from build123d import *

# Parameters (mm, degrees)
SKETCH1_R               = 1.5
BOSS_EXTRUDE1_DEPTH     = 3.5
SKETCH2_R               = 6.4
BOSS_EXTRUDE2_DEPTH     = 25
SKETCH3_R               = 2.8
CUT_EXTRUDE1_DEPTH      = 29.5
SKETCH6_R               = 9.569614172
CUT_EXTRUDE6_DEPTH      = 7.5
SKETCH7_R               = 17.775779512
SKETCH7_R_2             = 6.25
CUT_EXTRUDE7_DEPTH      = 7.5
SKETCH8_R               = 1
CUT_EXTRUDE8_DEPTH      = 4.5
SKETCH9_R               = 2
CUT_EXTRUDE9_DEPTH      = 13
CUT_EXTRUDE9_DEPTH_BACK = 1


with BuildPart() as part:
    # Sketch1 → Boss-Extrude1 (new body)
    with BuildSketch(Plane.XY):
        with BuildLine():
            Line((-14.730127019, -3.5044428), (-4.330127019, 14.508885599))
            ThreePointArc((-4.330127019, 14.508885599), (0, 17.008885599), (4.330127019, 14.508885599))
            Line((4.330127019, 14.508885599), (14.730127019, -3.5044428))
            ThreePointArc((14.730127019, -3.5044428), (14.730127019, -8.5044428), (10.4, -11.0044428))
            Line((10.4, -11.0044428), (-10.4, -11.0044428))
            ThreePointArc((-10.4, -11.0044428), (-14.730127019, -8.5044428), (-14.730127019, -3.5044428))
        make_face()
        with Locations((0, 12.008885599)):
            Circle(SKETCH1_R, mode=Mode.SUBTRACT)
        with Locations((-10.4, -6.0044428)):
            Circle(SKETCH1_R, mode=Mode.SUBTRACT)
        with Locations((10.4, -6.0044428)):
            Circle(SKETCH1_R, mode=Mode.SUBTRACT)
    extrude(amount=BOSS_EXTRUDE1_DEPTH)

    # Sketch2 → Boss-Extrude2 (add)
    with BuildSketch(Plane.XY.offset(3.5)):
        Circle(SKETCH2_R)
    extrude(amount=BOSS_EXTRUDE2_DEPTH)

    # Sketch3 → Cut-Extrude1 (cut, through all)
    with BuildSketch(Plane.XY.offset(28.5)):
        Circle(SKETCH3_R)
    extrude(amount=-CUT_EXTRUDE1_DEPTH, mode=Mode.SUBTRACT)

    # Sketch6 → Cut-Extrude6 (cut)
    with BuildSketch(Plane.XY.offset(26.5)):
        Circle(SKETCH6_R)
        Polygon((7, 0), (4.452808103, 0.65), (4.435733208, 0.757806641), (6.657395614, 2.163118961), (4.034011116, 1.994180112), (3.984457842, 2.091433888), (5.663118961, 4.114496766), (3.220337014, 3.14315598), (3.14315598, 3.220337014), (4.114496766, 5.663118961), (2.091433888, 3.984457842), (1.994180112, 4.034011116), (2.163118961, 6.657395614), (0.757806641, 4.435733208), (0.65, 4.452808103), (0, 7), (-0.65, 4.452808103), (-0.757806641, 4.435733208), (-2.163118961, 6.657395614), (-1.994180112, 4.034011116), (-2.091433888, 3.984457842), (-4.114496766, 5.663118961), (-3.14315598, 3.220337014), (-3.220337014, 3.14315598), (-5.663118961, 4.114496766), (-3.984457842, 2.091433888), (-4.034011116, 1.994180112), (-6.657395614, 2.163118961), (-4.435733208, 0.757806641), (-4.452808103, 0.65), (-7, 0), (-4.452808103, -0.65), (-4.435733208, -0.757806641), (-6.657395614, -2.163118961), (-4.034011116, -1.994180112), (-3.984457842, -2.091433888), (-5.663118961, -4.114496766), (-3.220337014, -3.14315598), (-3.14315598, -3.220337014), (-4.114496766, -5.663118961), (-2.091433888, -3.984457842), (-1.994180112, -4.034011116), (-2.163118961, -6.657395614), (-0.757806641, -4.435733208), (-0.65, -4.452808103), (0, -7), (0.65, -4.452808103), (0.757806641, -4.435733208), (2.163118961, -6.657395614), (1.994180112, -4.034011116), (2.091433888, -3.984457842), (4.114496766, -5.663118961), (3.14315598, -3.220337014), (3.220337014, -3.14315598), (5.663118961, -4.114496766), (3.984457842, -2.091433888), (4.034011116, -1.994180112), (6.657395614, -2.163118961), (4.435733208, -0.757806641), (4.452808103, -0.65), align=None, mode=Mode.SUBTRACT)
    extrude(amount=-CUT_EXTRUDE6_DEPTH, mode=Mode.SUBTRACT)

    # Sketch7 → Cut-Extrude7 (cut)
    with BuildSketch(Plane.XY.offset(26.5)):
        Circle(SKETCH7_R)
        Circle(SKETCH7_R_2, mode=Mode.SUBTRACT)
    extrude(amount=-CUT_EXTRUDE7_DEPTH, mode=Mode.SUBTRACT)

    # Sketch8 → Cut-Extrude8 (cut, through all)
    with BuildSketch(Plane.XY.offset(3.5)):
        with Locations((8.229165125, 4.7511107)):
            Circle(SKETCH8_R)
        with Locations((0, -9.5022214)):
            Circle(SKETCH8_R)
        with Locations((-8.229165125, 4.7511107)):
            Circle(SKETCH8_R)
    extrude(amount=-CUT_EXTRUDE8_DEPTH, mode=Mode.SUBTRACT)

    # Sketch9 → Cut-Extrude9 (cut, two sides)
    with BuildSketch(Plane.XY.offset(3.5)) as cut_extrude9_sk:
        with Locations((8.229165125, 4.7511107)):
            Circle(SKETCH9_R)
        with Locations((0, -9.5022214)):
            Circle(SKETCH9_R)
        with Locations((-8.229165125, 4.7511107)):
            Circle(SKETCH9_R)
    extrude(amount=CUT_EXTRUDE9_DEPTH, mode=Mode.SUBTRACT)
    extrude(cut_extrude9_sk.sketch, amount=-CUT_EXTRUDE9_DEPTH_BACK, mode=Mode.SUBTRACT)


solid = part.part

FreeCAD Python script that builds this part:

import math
import FreeCAD as App
import Part
import Sketcher
Q = App.Units.Quantity


def add_polygon(sketch, points):
    """Adds a closed chain of lines whose ends are joined by coincident constraints."""
    first, n = sketch.GeometryCount, len(points)
    for a, b in zip(points, points[1:] + points[:1]):
        sketch.addGeometry(Part.LineSegment(App.Vector(*a, 0), App.Vector(*b, 0)), False)
    for i in range(n):
        sketch.addConstraint(Sketcher.Constraint("Coincident", first + i, 2, first + (i + 1) % n, 1))

doc = App.newDocument("Part")
body = doc.addObject("PartDesign::Body", "Body")

sketch1 = body.newObject("Sketcher::SketchObject", "Sketch")
sketch1.AttachmentSupport = (doc.getObject("XY_Plane"), [""])
sketch1.MapMode = "FlatFace"
sketch1.addGeometry([
    Part.LineSegment(App.Vector(-4.3, 14.5, 0), App.Vector(-14.7, -3.5, 0)),
    Part.ArcOfCircle(Part.Circle(App.Vector(-10.4, -6, 0), App.Vector(0, 0, 1), 5), math.radians(150), math.radians(270)),
    Part.LineSegment(App.Vector(-10.4, -11, 0), App.Vector(10.4, -11, 0)),
    Part.ArcOfCircle(Part.Circle(App.Vector(10.4, -6, 0), App.Vector(0, 0, 1), 5), math.radians(-90), math.radians(30)),
    Part.LineSegment(App.Vector(14.7, -3.5, 0), App.Vector(4.3, 14.5, 0)),
    Part.ArcOfCircle(Part.Circle(App.Vector(0, 12, 0), App.Vector(0, 0, 1), 5), math.radians(30), math.radians(150)),
    Part.Circle(App.Vector(10.4, -6, 0), App.Vector(0, 0, 1), 1.5),
    Part.Circle(App.Vector(-10.4, -6, 0), App.Vector(0, 0, 1), 1.5),
    Part.Circle(App.Vector(0, 12, 0), App.Vector(0, 0, 1), 1.5),
], False)
sketch1.addConstraint([
    Sketcher.Constraint("Tangent", 0, 2, 1, 1),
    Sketcher.Constraint("Tangent", 1, 2, 2, 1),
    Sketcher.Constraint("Tangent", 2, 2, 3, 1),
    Sketcher.Constraint("Tangent", 3, 2, 4, 1),
    Sketcher.Constraint("Tangent", 4, 2, 5, 1),
    Sketcher.Constraint("Tangent", 5, 2, 0, 1),
    Sketcher.Constraint("Horizontal", 2),
    Sketcher.Constraint("Coincident", 6, 3, 3, 3),
    Sketcher.Constraint("Coincident", 7, 3, 1, 3),
    Sketcher.Constraint("Coincident", 8, 3, 5, 3),
    Sketcher.Constraint("Equal", 1, 3),
    Sketcher.Constraint("Equal", 3, 5),
    Sketcher.Constraint("Equal", 6, 7),
    Sketcher.Constraint("Equal", 7, 8),
    Sketcher.Constraint("Symmetric", 0, 2, 3, 2, -2),
    Sketcher.Constraint("Diameter", 6, Q("3 mm")),
    Sketcher.Constraint("Radius", 1, Q("5 mm")),
    Sketcher.Constraint("Angle", 0, Q("-120 deg")),
    Sketcher.Constraint("DistanceX", 2, 1, 2, 2, Q("20.8 mm")),
    Sketcher.Constraint("DistanceY", 1, 3, -1, 1, Q("6.004443 mm")),
])
pad1 = body.newObject("PartDesign::Pad", "Pad")
pad1.Profile = sketch1
pad1.Length = 3.5

sketch2 = body.newObject("Sketcher::SketchObject", "Sketch001")
sketch2.AttachmentSupport = (doc.getObject("XY_Plane"), [""])
sketch2.MapMode = "FlatFace"
sketch2.AttachmentOffset = App.Placement(App.Vector(0, 0, 3.5), App.Rotation())
sketch2.addGeometry(Part.Circle(App.Vector(0, 0, 0), App.Vector(0, 0, 1), 6), False)
sketch2.addConstraint([
    Sketcher.Constraint("Coincident", 0, 3, -1, 1),
    Sketcher.Constraint("Diameter", 0, Q("12.8 mm")),
])
pad2 = body.newObject("PartDesign::Pad", "Pad001")
pad2.Profile = sketch2
pad2.Length = 25

sketch3 = body.newObject("Sketcher::SketchObject", "Sketch002")
sketch3.AttachmentSupport = (doc.getObject("XY_Plane"), [""])
sketch3.MapMode = "FlatFace"
sketch3.AttachmentOffset = App.Placement(App.Vector(0, 0, 28.5), App.Rotation())
sketch3.addGeometry(Part.Circle(App.Vector(0, 0, 0), App.Vector(0, 0, 1), 2.8), False)
sketch3.addConstraint([
    Sketcher.Constraint("Coincident", 0, 3, -1, 1),
    Sketcher.Constraint("Diameter", 0, Q("5.6 mm")),
])
pocket1 = body.newObject("PartDesign::Pocket", "Pocket")
pocket1.Profile = sketch3
pocket1.Type = "ThroughAll"

sketch4 = body.newObject("Sketcher::SketchObject", "Sketch003")
sketch4.AttachmentSupport = (doc.getObject("XY_Plane"), [""])
sketch4.MapMode = "FlatFace"
sketch4.AttachmentOffset = App.Placement(App.Vector(0, 0, 26.5), App.Rotation())
sketch4.addGeometry(Part.Circle(App.Vector(0, 0, 0), App.Vector(0, 0, 1), 9.57), False)
add_polygon(sketch4, [(4.45, 0.65), (7, 0), (4.45, -0.65), (4.44, -0.76), (6.66, -2.16), (4.03, -1.99), (3.98, -2.09), (5.66, -4.11), (3.22, -3.14), (3.14, -3.22), (4.11, -5.66), (2.09, -3.98), (1.99, -4.03), (2.16, -6.66), (0.76, -4.44), (0.65, -4.45), (0, -7), (-0.65, -4.45), (-0.76, -4.44), (-2.16, -6.66), (-1.99, -4.03), (-2.09, -3.98), (-4.11, -5.66), (-3.14, -3.22), (-3.22, -3.14), (-5.66, -4.11), (-3.98, -2.09), (-4.03, -1.99), (-6.66, -2.16), (-4.44, -0.76), (-4.45, -0.65), (-7, 0), (-4.45, 0.65), (-4.44, 0.76), (-6.66, 2.16), (-4.03, 1.99), (-3.98, 2.09), (-5.66, 4.11), (-3.22, 3.14), (-3.14, 3.22), (-4.11, 5.66), (-2.09, 3.98), (-1.99, 4.03), (-2.16, 6.66), (-0.76, 4.44), (-0.65, 4.45), (0, 7), (0.65, 4.45), (0.76, 4.44), (2.16, 6.66), (1.99, 4.03), (2.09, 3.98), (4.11, 5.66), (3.14, 3.22), (3.22, 3.14), (5.66, 4.11), (3.98, 2.09), (4.03, 1.99), (6.66, 2.16), (4.44, 0.76)])
sketch4.addConstraint([
    Sketcher.Constraint("Coincident", 0, 3, -1, 1),
    Sketcher.Constraint("Symmetric", 1, 2, 31, 2, -1, 1),
    Sketcher.Constraint("Symmetric", 2, 2, 32, 2, -1, 1),
    Sketcher.Constraint("Symmetric", 3, 2, 33, 2, -1, 1),
    Sketcher.Constraint("Symmetric", 4, 2, 34, 2, -1, 1),
    Sketcher.Constraint("Symmetric", 5, 2, 35, 2, -1, 1),
    Sketcher.Constraint("Symmetric", 6, 2, 36, 2, -1, 1),
    Sketcher.Constraint("Symmetric", 7, 2, 37, 2, -1, 1),
    Sketcher.Constraint("Symmetric", 8, 2, 38, 2, -1, 1),
    Sketcher.Constraint("Symmetric", 9, 2, 39, 2, -1, 1),
    Sketcher.Constraint("Symmetric", 10, 2, 40, 2, -1, 1),
    Sketcher.Constraint("Symmetric", 11, 2, 41, 2, -1, 1),
    Sketcher.Constraint("Symmetric", 12, 2, 42, 2, -1, 1),
    Sketcher.Constraint("Symmetric", 13, 2, 43, 2, -1, 1),
    Sketcher.Constraint("Symmetric", 14, 2, 44, 2, -1, 1),
    Sketcher.Constraint("Symmetric", 15, 2, 45, 2, -1, 1),
    Sketcher.Constraint("Symmetric", 16, 2, 46, 2, -1, 1),
    Sketcher.Constraint("Symmetric", 17, 2, 47, 2, -1, 1),
    Sketcher.Constraint("Symmetric", 18, 2, 48, 2, -1, 1),
    Sketcher.Constraint("Symmetric", 19, 2, 49, 2, -1, 1),
    Sketcher.Constraint("Symmetric", 20, 2, 50, 2, -1, 1),
    Sketcher.Constraint("Symmetric", 21, 2, 51, 2, -1, 1),
    Sketcher.Constraint("Symmetric", 22, 2, 52, 2, -1, 1),
    Sketcher.Constraint("Symmetric", 23, 2, 53, 2, -1, 1),
    Sketcher.Constraint("Symmetric", 24, 2, 54, 2, -1, 1),
    Sketcher.Constraint("Symmetric", 25, 2, 55, 2, -1, 1),
    Sketcher.Constraint("Symmetric", 26, 2, 56, 2, -1, 1),
    Sketcher.Constraint("Symmetric", 27, 2, 57, 2, -1, 1),
    Sketcher.Constraint("Symmetric", 28, 2, 58, 2, -1, 1),
    Sketcher.Constraint("Symmetric", 29, 2, 59, 2, -1, 1),
    Sketcher.Constraint("Symmetric", 30, 2, 60, 2, -1, 1),
    Sketcher.Constraint("Symmetric", 15, 2, 17, 2, -2),
    Sketcher.Constraint("Symmetric", 14, 2, 18, 2, -2),
    Sketcher.Constraint("Symmetric", 13, 2, 19, 2, -2),
    Sketcher.Constraint("Symmetric", 12, 2, 20, 2, -2),
    Sketcher.Constraint("Symmetric", 11, 2, 21, 2, -2),
    Sketcher.Constraint("Symmetric", 10, 2, 22, 2, -2),
    Sketcher.Constraint("Symmetric", 9, 2, 23, 2, -2),
    Sketcher.Constraint("Symmetric", 8, 2, 24, 2, -2),
    Sketcher.Constraint("Symmetric", 7, 2, 25, 2, -2),
    Sketcher.Constraint("Symmetric", 6, 2, 26, 2, -2),
    Sketcher.Constraint("Symmetric", 5, 2, 27, 2, -2),
    Sketcher.Constraint("Symmetric", 4, 2, 28, 2, -2),
    Sketcher.Constraint("Symmetric", 3, 2, 29, 2, -2),
    Sketcher.Constraint("Symmetric", 2, 2, 30, 2, -2),
    Sketcher.Constraint("PointOnObject", 1, 2, -1),
    Sketcher.Constraint("PointOnObject", 16, 2, -2),
    Sketcher.Constraint("Perpendicular", 1, 16),
    Sketcher.Constraint("Perpendicular", 3, 18),
    Sketcher.Constraint("Perpendicular", 4, 19),
    Sketcher.Constraint("Perpendicular", 5, 20),
    Sketcher.Constraint("Perpendicular", 6, 21),
    Sketcher.Constraint("Perpendicular", 7, 22),
    Sketcher.Constraint("Perpendicular", 8, 23),
    Sketcher.Constraint("Perpendicular", 9, 24),
    Sketcher.Constraint("Equal", 2, 4),
    Sketcher.Constraint("Equal", 4, 5),
    Sketcher.Constraint("Equal", 3, 6),
    Sketcher.Constraint("Equal", 5, 7),
    Sketcher.Constraint("Equal", 7, 8),
    Sketcher.Constraint("Equal", 6, 9),
    Sketcher.Constraint("Equal", 8, 10),
    Sketcher.Constraint("Equal", 10, 11),
    Sketcher.Constraint("Equal", 9, 12),
    Sketcher.Constraint("Equal", 11, 13),
    Sketcher.Constraint("Equal", 13, 14),
    Sketcher.Constraint("Equal", 12, 15),
    Sketcher.Constraint("Equal", 14, 16),
    Sketcher.Constraint("Angle", 3, Q("-99 deg")),
    Sketcher.Constraint("Angle", 6, Q("-117 deg")),
    Sketcher.Constraint("DistanceX", -1, 1, 1, 2, Q("7 mm")),
    Sketcher.Constraint("Diameter", 0, Q("19.139228 mm")),
    Sketcher.Constraint("DistanceY", 2, 2, -1, 1, Q("0.65 mm")),
    Sketcher.Constraint("Distance", 1, Q("2.628818 mm")),
    Sketcher.Constraint("Distance", 3, Q("0.10915 mm")),
    Sketcher.Constraint("DistanceY", 4, 2, -1, 1, Q("2.163119 mm")),
    Sketcher.Constraint("DistanceX", -1, 1, 5, 2, Q("4.034011 mm")),
    Sketcher.Constraint("DistanceX", -1, 1, 7, 2, Q("5.663119 mm")),
])
pocket2 = body.newObject("PartDesign::Pocket", "Pocket001")
pocket2.Profile = sketch4
pocket2.Length = 7.5

sketch5 = body.newObject("Sketcher::SketchObject", "Sketch004")
sketch5.AttachmentSupport = (doc.getObject("XY_Plane"), [""])
sketch5.MapMode = "FlatFace"
sketch5.AttachmentOffset = App.Placement(App.Vector(0, 0, 26.5), App.Rotation())
sketch5.addGeometry([
    Part.Circle(App.Vector(0, 0, 0), App.Vector(0, 0, 1), 18),
    Part.Circle(App.Vector(0, 0, 0), App.Vector(0, 0, 1), 6),
], False)
sketch5.addConstraint([
    Sketcher.Constraint("Coincident", 0, 3, -1, 1),
    Sketcher.Constraint("Coincident", 1, 3, -1, 1),
    Sketcher.Constraint("Diameter", 1, Q("12.5 mm")),
    Sketcher.Constraint("Diameter", 0, Q("35.551559 mm")),
])
pocket3 = body.newObject("PartDesign::Pocket", "Pocket002")
pocket3.Profile = sketch5
pocket3.Length = 7.5

sketch6 = body.newObject("Sketcher::SketchObject", "Sketch005")
sketch6.AttachmentSupport = (doc.getObject("XY_Plane"), [""])
sketch6.MapMode = "FlatFace"
sketch6.AttachmentOffset = App.Placement(App.Vector(0, 0, 3.5), App.Rotation())
sketch6.addGeometry([
    Part.Circle(App.Vector(8.2, 4.8, 0), App.Vector(0, 0, 1), 1),
    Part.Circle(App.Vector(0, -9.5, 0), App.Vector(0, 0, 1), 1),
    Part.Circle(App.Vector(-8.2, 4.8, 0), App.Vector(0, 0, 1), 1),
], False)
sketch6.addConstraint([
    Sketcher.Constraint("Equal", 0, 1),
    Sketcher.Constraint("Equal", 1, 2),
    Sketcher.Constraint("Symmetric", 0, 3, 2, 3, -2),
    Sketcher.Constraint("PointOnObject", 1, 3, -2),
    Sketcher.Constraint("Diameter", 0, Q("2 mm")),
    Sketcher.Constraint("DistanceY", -1, 1, 0, 3, Q("4.751111 mm")),
    Sketcher.Constraint("DistanceY", 1, 3, -1, 1, Q("9.502221 mm")),
    Sketcher.Constraint("DistanceX", 2, 3, 0, 3, Q("16.45833 mm")),
])
pocket4 = body.newObject("PartDesign::Pocket", "Pocket003")
pocket4.Profile = sketch6
pocket4.Type = "ThroughAll"

sketch7 = body.newObject("Sketcher::SketchObject", "Sketch006")
sketch7.AttachmentSupport = (doc.getObject("XY_Plane"), [""])
sketch7.MapMode = "FlatFace"
sketch7.AttachmentOffset = App.Placement(App.Vector(0, 0, 3.5), App.Rotation())
sketch7.addGeometry([
    Part.Circle(App.Vector(8.2, 4.8, 0), App.Vector(0, 0, 1), 2),
    Part.Circle(App.Vector(0, -9.5, 0), App.Vector(0, 0, 1), 2),
    Part.Circle(App.Vector(-8.2, 4.8, 0), App.Vector(0, 0, 1), 2),
], False)
sketch7.addConstraint([
    Sketcher.Constraint("Equal", 0, 1),
    Sketcher.Constraint("Equal", 1, 2),
    Sketcher.Constraint("Symmetric", 0, 3, 2, 3, -2),
    Sketcher.Constraint("PointOnObject", 1, 3, -2),
    Sketcher.Constraint("Diameter", 0, Q("4 mm")),
    Sketcher.Constraint("DistanceY", -1, 1, 0, 3, Q("4.751111 mm")),
    Sketcher.Constraint("DistanceY", 1, 3, -1, 1, Q("9.502221 mm")),
    Sketcher.Constraint("DistanceX", 2, 3, 0, 3, Q("16.45833 mm")),
])
pocket5 = body.newObject("PartDesign::Pocket", "Pocket004")
pocket5.Profile = sketch7
pocket5.Type = "TwoLengths"
pocket5.Length = 13
pocket5.Length2 = 1
pocket5.Reversed = True

doc.recompute()
